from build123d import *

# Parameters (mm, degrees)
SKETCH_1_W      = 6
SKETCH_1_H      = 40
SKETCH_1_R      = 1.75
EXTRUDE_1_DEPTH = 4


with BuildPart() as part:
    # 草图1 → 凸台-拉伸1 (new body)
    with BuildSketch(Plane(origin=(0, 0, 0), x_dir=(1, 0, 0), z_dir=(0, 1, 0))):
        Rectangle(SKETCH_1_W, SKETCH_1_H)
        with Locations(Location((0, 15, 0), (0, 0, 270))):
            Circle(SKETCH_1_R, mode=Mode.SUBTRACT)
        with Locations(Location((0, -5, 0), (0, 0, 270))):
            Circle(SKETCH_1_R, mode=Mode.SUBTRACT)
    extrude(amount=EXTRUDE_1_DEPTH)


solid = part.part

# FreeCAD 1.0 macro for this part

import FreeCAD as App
import Part
import Sketcher

V = App.Vector

doc = App.newDocument("Part")
body = doc.addObject("PartDesign::Body", "Body")

sketch1 = body.newObject("Sketcher::SketchObject", "Sketch")
sketch1.AttachmentSupport = (doc.getObject("XZ_Plane"), [""])
sketch1.MapMode = "FlatFace"
sketch1.addGeometry(Part.LineSegment(V(-3, -20, 0), V(-3, 20, 0)), False)
sketch1.addGeometry(Part.LineSegment(V(-3, 20, 0), V(3, 20, 0)), False)
sketch1.addGeometry(Part.LineSegment(V(3, 20, 0), V(3, -20, 0)), False)
sketch1.addGeometry(Part.LineSegment(V(3, -20, 0), V(-3, -20, 0)), False)
sketch1.addGeometry(Part.Circle(V(0, 5, 0), V(0, 0, 1), 1.8), False)
sketch1.addGeometry(Part.Circle(V(0, -15, 0), V(0, 0, 1), 1.8), False)
sketch1.addConstraint(Sketcher.Constraint("Coincident", 0, 2, 1, 1))
sketch1.addConstraint(Sketcher.Constraint("Coincident", 1, 2, 2, 1))
sketch1.addConstraint(Sketcher.Constraint("Coincident", 2, 2, 3, 1))
sketch1.addConstraint(Sketcher.Constraint("Coincident", 3, 2, 0, 1))
sketch1.addConstraint(Sketcher.Constraint("Vertical", 0))
sketch1.addConstraint(Sketcher.Constraint("Horizontal", 1))
sketch1.addConstraint(Sketcher.Constraint("Vertical", 2))
sketch1.addConstraint(Sketcher.Constraint("Horizontal", 3))
sketch1.addConstraint(Sketcher.Constraint("Equal", 4, 5))
sketch1.addConstraint(Sketcher.Constraint("Symmetric", 0, 2, 2, 2, -1, 1))
sketch1.addConstraint(Sketcher.Constraint("PointOnObject", 4, 3, -2))
sketch1.addConstraint(Sketcher.Constraint("PointOnObject", 5, 3, -2))
sketch1.addConstraint(Sketcher.Constraint("Diameter", 4, 3.5))
sketch1.addConstraint(Sketcher.Constraint("DistanceX", 1, 1, 1, 2, 6.0))
sketch1.addConstraint(Sketcher.Constraint("DistanceY", 0, 1, 0, 2, 40.0))
sketch1.addConstraint(Sketcher.Constraint("DistanceY", -1, 1, 4, 3, 5.0))
sketch1.addConstraint(Sketcher.Constraint("DistanceY", 5, 3, -1, 1, 15.0))
pad1 = body.newObject("PartDesign::Pad", "Pad")
pad1.Profile = sketch1
pad1.Length = 4
pad1.Reversed = True

doc.recompute()
